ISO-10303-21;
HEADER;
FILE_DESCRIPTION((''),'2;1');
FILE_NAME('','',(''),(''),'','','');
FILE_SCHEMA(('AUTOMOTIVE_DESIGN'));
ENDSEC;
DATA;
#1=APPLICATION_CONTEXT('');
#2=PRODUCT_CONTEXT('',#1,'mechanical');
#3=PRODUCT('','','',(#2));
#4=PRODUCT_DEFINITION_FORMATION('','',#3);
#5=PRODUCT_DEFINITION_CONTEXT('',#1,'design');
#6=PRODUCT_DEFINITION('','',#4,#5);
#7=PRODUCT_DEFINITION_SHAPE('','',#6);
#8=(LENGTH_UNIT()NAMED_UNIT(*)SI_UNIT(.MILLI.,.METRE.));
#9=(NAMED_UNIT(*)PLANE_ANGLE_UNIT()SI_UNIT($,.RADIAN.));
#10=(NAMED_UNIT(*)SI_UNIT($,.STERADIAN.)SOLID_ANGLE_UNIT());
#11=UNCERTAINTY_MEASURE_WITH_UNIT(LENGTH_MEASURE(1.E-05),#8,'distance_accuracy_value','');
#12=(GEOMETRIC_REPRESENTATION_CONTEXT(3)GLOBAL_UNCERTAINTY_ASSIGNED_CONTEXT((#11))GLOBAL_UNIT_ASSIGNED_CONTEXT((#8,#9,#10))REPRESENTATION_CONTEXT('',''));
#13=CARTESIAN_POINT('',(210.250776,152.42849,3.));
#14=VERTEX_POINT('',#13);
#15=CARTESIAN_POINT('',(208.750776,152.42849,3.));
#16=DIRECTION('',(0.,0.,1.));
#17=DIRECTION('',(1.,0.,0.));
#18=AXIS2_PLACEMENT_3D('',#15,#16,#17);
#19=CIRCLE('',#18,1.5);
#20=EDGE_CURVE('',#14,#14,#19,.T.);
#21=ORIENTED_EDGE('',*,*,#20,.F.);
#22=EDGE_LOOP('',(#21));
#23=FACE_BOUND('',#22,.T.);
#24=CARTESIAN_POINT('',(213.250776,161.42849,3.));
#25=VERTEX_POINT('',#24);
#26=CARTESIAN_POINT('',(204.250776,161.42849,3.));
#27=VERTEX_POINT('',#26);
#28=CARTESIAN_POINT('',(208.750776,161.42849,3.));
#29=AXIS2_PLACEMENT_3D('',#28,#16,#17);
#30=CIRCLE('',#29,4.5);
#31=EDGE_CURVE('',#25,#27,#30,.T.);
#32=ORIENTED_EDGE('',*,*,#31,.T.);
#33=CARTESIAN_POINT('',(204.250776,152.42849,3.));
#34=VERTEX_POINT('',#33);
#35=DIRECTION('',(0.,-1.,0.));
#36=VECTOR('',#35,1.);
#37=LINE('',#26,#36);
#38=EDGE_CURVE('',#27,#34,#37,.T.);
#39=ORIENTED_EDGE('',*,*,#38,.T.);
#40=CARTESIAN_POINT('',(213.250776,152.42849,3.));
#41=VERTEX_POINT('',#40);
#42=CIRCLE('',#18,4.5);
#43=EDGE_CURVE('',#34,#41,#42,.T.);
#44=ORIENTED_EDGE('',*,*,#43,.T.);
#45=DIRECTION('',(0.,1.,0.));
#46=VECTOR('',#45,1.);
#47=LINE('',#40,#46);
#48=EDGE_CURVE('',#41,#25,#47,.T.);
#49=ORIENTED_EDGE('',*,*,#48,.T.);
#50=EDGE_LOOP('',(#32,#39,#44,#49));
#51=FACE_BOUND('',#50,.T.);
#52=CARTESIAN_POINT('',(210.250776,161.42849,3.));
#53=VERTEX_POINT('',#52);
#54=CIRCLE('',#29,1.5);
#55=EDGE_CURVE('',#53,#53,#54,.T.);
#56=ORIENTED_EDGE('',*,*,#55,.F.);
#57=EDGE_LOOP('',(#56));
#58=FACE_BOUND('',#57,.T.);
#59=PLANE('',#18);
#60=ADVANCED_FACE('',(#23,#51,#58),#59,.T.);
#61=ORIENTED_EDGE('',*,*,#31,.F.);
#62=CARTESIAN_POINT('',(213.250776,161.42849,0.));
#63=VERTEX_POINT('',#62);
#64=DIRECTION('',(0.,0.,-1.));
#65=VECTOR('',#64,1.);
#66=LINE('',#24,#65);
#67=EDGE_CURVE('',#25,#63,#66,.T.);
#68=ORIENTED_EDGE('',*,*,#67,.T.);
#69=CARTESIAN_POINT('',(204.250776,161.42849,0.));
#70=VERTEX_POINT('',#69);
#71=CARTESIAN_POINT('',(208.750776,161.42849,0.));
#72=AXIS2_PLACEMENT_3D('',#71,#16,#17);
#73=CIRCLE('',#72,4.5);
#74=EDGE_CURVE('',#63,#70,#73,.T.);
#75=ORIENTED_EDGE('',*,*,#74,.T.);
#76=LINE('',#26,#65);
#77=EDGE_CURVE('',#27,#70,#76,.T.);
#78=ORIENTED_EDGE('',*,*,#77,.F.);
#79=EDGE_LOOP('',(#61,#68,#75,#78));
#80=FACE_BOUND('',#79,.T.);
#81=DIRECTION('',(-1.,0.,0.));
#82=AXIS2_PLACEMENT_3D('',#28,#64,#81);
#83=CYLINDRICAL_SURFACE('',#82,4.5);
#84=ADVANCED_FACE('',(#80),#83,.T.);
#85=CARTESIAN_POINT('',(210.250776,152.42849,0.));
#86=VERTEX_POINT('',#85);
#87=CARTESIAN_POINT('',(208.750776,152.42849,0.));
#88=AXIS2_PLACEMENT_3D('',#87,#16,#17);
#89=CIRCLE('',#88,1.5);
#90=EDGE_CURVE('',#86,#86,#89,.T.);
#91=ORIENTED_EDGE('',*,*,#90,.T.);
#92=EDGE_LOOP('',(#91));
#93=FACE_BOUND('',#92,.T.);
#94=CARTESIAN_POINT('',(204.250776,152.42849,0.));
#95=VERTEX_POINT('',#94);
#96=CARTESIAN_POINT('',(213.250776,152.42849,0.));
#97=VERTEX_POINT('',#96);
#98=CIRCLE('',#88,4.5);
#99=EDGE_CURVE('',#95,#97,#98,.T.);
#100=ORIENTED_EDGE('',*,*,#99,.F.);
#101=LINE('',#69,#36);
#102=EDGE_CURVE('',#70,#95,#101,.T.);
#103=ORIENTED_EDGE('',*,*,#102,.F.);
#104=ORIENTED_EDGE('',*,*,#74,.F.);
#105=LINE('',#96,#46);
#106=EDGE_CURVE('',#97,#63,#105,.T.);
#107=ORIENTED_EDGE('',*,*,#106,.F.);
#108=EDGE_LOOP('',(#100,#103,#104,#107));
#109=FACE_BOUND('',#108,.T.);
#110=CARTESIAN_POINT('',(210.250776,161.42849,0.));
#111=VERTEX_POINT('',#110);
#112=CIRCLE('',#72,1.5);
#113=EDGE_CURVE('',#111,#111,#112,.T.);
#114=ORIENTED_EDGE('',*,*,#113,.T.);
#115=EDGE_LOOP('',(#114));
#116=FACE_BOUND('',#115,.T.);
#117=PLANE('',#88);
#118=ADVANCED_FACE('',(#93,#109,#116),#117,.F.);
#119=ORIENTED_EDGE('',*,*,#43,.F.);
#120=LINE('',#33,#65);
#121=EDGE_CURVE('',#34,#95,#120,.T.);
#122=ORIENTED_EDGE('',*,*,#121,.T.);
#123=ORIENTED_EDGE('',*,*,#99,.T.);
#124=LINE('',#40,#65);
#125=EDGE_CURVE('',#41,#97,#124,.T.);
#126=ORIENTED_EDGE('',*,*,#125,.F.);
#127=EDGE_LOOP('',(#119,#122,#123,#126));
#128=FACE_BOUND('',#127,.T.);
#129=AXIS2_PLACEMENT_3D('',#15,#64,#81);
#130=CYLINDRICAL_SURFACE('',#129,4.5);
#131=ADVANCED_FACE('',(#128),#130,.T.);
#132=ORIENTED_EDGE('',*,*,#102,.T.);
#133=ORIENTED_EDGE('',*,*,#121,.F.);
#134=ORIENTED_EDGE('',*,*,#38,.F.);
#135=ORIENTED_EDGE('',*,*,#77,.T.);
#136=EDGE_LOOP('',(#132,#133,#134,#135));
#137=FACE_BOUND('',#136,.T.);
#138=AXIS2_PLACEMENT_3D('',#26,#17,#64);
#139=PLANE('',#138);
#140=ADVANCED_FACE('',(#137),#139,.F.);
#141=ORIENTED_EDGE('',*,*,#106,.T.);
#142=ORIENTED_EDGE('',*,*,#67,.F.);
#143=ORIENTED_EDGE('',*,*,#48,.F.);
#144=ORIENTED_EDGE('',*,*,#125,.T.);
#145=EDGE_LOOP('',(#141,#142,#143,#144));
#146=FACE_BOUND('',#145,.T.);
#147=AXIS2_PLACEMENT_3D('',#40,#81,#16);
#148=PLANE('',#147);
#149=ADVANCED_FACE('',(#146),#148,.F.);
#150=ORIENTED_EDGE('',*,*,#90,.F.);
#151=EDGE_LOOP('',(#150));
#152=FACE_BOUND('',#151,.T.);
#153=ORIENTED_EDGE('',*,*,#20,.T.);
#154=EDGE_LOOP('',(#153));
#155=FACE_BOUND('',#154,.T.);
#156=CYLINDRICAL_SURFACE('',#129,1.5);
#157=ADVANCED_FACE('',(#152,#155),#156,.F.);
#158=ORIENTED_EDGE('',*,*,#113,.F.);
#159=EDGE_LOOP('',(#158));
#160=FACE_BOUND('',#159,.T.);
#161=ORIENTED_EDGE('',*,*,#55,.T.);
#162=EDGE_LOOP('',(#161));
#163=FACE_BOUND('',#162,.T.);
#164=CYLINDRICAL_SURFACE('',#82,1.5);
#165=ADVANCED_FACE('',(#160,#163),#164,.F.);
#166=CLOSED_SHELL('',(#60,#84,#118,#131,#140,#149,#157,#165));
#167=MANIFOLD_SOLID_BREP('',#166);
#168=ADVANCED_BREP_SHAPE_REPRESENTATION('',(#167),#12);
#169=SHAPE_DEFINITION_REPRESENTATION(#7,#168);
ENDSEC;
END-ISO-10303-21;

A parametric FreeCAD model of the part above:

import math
import FreeCAD as App
import Part
import Sketcher
from FreeCAD import Vector
Q = App.Units.Quantity

doc = App.newDocument("Part")
body = doc.addObject("PartDesign::Body", "Body")

# Sketch on XY plane
sketch1 = body.newObject("Sketcher::SketchObject", "Sketch")
sketch1.AttachmentSupport = (doc.getObject("XY_Plane"), [""])
sketch1.MapMode = "FlatFace"
sketch1.addGeometry([
    Part.LineSegment(Vector(213.3, 152.4, 0), Vector(213.3, 161.4, 0)),  # 0
    Part.ArcOfCircle(Part.Circle(Vector(208.8, 161.4, 0), Vector(0, 0, 1), 4.5), math.radians(0), math.radians(180)),  # 1
    Part.LineSegment(Vector(204.3, 161.4, 0), Vector(204.3, 152.4, 0)),  # 2
    Part.ArcOfCircle(Part.Circle(Vector(208.8, 152.4, 0), Vector(0, 0, 1), 4.5), math.radians(180), math.radians(360)),  # 3
    Part.Circle(Vector(208.8, 152.4, 0), Vector(0, 0, 1), 1.5),  # 4
    Part.Circle(Vector(208.8, 161.4, 0), Vector(0, 0, 1), 1.5),  # 5
], False)
sketch1.addConstraint([
    Sketcher.Constraint("Tangent", 0, 2, 1, 1),
    Sketcher.Constraint("Tangent", 1, 2, 2, 1),
    Sketcher.Constraint("Tangent", 2, 2, 3, 1),
    Sketcher.Constraint("Tangent", 3, 2, 0, 1),
    Sketcher.Constraint("Vertical", 0),
    Sketcher.Constraint("Vertical", 2),
    Sketcher.Constraint("Coincident", 4, 3, 3, 3),
    Sketcher.Constraint("Coincident", 5, 3, 1, 3),
    Sketcher.Constraint("Equal", 4, 5),
    Sketcher.Constraint("Diameter", 4, Q("3 mm")),
    Sketcher.Constraint("Radius", 1, Q("4.5 mm")),
    Sketcher.Constraint("DistanceY", 0, 1, 0, 2, Q("9 mm")),
    Sketcher.Constraint("DistanceY", -1, 1, 1, 3, Q("161.42849 mm")),
    Sketcher.Constraint("DistanceX", -1, 1, 1, 3, Q("208.750776 mm")),
])
pad1 = body.newObject("PartDesign::Pad", "Pad")
pad1.Profile = sketch1
pad1.Length = 3

doc.recompute()
